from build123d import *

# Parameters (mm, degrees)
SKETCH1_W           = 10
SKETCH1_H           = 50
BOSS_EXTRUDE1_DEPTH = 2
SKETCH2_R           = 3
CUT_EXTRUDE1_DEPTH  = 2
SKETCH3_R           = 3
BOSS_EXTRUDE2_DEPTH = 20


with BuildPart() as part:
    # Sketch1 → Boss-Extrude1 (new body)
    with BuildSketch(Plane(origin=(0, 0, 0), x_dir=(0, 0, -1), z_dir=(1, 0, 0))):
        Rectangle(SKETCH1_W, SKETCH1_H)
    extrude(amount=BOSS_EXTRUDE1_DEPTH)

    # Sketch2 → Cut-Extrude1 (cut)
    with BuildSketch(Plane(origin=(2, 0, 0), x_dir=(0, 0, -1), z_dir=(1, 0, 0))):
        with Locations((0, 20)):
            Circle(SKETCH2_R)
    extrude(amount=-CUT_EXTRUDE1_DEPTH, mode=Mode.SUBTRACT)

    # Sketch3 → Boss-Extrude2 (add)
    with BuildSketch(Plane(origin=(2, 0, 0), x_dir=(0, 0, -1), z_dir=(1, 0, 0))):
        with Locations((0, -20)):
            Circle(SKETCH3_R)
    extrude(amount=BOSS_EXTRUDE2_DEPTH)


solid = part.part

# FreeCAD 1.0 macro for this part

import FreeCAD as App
import Part
import Sketcher

V = App.Vector

doc = App.newDocument("Part")
params = doc.addObject("Spreadsheet::Sheet", "Params")
for row, (alias, value) in enumerate([
    ("sketch1_width", "50 mm"),
    ("sketch1_height", "10 mm"),
    ("pad1_length", "2 mm"),
    ("sketch2_diameter", "6 mm"),
    ("pocket1_length", "2 mm"),
    ("sketch3_diameter", "6 mm"),
    ("pad2_length", "20 mm"),
], start=1):
    params.set(f"A{row}", alias)
    params.set(f"B{row}", "=" + value)
    params.setAlias(f"B{row}", alias)

body = doc.addObject("PartDesign::Body", "Body")

# Sketch on YZ plane
sketch1 = body.newObject("Sketcher::SketchObject", "Sketch")
sketch1.AttachmentSupport = (doc.getObject("YZ_Plane"), [""])
sketch1.MapMode = "FlatFace"
sketch1.addGeometry([
    Part.LineSegment(V(25, 5, 0), V(-25, 5, 0)),
    Part.LineSegment(V(-25, 5, 0), V(-25, -5, 0)),
    Part.LineSegment(V(-25, -5, 0), V(25, -5, 0)),
    Part.LineSegment(V(25, -5, 0), V(25, 5, 0)),
], False)
sketch1.addConstraint([
    Sketcher.Constraint("Coincident", 0, 2, 1, 1),
    Sketcher.Constraint("Coincident", 1, 2, 2, 1),
    Sketcher.Constraint("Coincident", 2, 2, 3, 1),
    Sketcher.Constraint("Coincident", 3, 2, 0, 1),
    Sketcher.Constraint("Horizontal", 0),
    Sketcher.Constraint("Vertical", 1),
    Sketcher.Constraint("Horizontal", 2),
    Sketcher.Constraint("Vertical", 3),
    Sketcher.Constraint("Symmetric", 0, 2, 2, 2, -1, 1),
    Sketcher.Constraint("DistanceX", 0, 2, 0, 1, 50.0),
    Sketcher.Constraint("DistanceY", 1, 2, 1, 1, 10.0),
])
sketch1.setExpression("Constraints[9]", "Params.sketch1_width")
sketch1.setExpression("Constraints[10]", "Params.sketch1_height")
pad1 = body.newObject("PartDesign::Pad", "Pad")
pad1.Profile = sketch1
pad1.setExpression("Length", "Params.pad1_length")

# Sketch on YZ plane
sketch2 = body.newObject("Sketcher::SketchObject", "Sketch001")
sketch2.AttachmentSupport = (doc.getObject("YZ_Plane"), [""])
sketch2.MapMode = "FlatFace"
sketch2.AttachmentOffset = App.Placement(V(0, 0, 2), App.Rotation())
sketch2.addGeometry(Part.Circle(V(20, 0, 0), V(0, 0, 1), 3), False)
sketch2.addConstraint([
    Sketcher.Constraint("PointOnObject", 0, 3, -1),
    Sketcher.Constraint("Diameter", 0, 6.0),
    Sketcher.Constraint("DistanceX", -1, 1, 0, 3, 20.0),
])
sketch2.setExpression("Constraints[1]", "Params.sketch2_diameter")
pocket1 = body.newObject("PartDesign::Pocket", "Pocket")
pocket1.Profile = sketch2
pocket1.setExpression("Length", "Params.pocket1_length")

# Sketch on YZ plane
sketch3 = body.newObject("Sketcher::SketchObject", "Sketch002")
sketch3.AttachmentSupport = (doc.getObject("YZ_Plane"), [""])
sketch3.MapMode = "FlatFace"
sketch3.AttachmentOffset = App.Placement(V(0, 0, 2), App.Rotation())
sketch3.addGeometry(Part.Circle(V(-20, 0, 0), V(0, 0, 1), 3), False)
sketch3.addConstraint([
    Sketcher.Constraint("PointOnObject", 0, 3, -1),
    Sketcher.Constraint("Diameter", 0, 6.0),
    Sketcher.Constraint("DistanceX", 0, 3, -1, 1, 20.0),
])
sketch3.setExpression("Constraints[1]", "Params.sketch3_diameter")
pad2 = body.newObject("PartDesign::Pad", "Pad001")
pad2.Profile = sketch3
pad2.setExpression("Length", "Params.pad2_length")

doc.recompute()
